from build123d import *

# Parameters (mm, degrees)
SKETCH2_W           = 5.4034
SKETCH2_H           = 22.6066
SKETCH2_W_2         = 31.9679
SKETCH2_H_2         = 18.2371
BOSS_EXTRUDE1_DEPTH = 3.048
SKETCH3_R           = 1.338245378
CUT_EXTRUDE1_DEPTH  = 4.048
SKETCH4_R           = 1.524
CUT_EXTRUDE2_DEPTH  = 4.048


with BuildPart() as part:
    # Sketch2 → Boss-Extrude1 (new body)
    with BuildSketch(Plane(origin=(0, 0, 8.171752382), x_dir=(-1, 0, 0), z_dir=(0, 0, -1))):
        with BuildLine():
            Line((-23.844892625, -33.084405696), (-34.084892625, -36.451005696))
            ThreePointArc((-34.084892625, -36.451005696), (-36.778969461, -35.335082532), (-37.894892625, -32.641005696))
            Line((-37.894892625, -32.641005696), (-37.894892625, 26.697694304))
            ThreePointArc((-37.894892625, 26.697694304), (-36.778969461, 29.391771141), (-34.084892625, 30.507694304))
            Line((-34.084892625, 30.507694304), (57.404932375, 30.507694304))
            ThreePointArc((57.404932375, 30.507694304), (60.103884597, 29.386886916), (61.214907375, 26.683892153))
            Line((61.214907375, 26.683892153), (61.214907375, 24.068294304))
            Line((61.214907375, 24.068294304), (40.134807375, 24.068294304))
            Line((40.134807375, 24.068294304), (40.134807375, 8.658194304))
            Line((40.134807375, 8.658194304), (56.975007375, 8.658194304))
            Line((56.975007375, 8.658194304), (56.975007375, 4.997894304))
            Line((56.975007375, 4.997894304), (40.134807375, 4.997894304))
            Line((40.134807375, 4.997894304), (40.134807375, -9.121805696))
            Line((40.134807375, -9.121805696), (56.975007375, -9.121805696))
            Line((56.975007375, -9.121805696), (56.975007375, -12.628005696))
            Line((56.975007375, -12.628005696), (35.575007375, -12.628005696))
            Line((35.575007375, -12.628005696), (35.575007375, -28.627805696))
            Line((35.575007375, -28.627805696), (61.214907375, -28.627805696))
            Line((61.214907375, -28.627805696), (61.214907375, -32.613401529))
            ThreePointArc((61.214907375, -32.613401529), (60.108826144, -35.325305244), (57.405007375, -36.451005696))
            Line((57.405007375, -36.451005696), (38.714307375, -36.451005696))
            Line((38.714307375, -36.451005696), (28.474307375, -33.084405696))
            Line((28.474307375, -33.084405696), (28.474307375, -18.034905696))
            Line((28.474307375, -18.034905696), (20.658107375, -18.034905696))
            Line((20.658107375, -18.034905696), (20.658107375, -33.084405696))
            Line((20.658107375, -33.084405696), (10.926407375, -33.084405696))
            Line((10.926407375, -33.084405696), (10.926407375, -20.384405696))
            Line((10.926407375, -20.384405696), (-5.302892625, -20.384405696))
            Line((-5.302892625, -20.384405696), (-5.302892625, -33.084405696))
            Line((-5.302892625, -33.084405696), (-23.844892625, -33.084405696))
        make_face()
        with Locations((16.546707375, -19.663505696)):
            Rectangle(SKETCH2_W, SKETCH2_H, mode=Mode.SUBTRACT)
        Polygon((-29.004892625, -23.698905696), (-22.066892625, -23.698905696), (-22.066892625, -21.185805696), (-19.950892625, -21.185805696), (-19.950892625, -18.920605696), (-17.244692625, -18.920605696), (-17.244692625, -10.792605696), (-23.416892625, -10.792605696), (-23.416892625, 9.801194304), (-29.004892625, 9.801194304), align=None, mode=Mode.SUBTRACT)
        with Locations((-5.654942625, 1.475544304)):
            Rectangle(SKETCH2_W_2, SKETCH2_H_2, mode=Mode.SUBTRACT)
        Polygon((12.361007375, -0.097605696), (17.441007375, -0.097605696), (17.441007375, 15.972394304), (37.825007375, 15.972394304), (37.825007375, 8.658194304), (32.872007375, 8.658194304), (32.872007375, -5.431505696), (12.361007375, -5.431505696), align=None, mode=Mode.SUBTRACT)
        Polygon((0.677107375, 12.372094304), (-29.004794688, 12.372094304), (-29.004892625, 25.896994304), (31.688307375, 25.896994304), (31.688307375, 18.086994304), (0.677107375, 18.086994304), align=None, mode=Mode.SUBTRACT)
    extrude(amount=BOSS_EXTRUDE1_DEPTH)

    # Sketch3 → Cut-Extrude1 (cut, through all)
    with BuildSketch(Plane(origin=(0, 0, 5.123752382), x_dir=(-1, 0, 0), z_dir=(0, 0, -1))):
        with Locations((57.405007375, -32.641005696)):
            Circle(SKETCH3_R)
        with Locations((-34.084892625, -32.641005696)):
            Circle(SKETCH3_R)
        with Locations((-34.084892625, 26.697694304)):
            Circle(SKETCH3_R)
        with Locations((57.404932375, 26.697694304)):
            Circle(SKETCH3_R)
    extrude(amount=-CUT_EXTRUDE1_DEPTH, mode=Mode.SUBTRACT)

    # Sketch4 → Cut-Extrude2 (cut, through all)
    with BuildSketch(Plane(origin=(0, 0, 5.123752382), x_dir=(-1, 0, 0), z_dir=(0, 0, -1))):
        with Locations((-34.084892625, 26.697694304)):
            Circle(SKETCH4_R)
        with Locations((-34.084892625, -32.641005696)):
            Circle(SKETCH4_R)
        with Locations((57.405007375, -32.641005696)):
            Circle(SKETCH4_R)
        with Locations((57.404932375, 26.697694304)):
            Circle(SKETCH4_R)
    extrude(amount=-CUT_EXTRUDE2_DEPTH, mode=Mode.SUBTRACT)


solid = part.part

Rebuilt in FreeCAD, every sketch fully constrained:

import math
import FreeCAD as App
import Part
import Sketcher

V = App.Vector
Q = App.Units.Quantity


def add_polygon(sketch, points):
    """Adds a closed chain of lines whose ends are joined by coincident constraints."""
    first, n = sketch.GeometryCount, len(points)
    for a, b in zip(points, points[1:] + points[:1]):
        sketch.addGeometry(Part.LineSegment(App.Vector(*a, 0), App.Vector(*b, 0)), False)
    for i in range(n):
        sketch.addConstraint(Sketcher.Constraint("Coincident", first + i, 2, first + (i + 1) % n, 1))

doc = App.newDocument("Part")
body = doc.addObject("PartDesign::Body", "Body")

# Sketch on XY plane
sketch1 = doc.addObject("Sketcher::SketchObject", "Sketch")
body.addObject(sketch1)
sketch1.AttachmentSupport = (doc.XY_Plane, [""])
sketch1.MapMode = "FlatFace"
sketch1.AttachmentOffset = App.Placement(V(0, 0, 8.171752), App.Rotation())
sketch1.addGeometry(Part.LineSegment(V(34.1, -36.5, 0), V(23.8, -33.1, 0)), False)  # 0
sketch1.addGeometry(Part.LineSegment(V(23.8, -33.1, 0), V(5.3, -33.1, 0)), False)  # 1
sketch1.addGeometry(Part.LineSegment(V(5.3, -33.1, 0), V(5.3, -20.4, 0)), False)  # 2
sketch1.addGeometry(Part.LineSegment(V(5.3, -20.4, 0), V(-10.9, -20.4, 0)), False)  # 3
sketch1.addGeometry(Part.LineSegment(V(-10.9, -20.4, 0), V(-10.9, -33.1, 0)), False)  # 4
sketch1.addGeometry(Part.LineSegment(V(-10.9, -33.1, 0), V(-20.7, -33.1, 0)), False)  # 5
sketch1.addGeometry(Part.LineSegment(V(-20.7, -33.1, 0), V(-20.7, -18, 0)), False)  # 6
sketch1.addGeometry(Part.LineSegment(V(-20.7, -18, 0), V(-28.5, -18, 0)), False)  # 7
sketch1.addGeometry(Part.LineSegment(V(-28.5, -18, 0), V(-28.5, -33.1, 0)), False)  # 8
sketch1.addGeometry(Part.LineSegment(V(-28.5, -33.1, 0), V(-38.7, -36.5, 0)), False)  # 9
sketch1.addGeometry(Part.LineSegment(V(-38.7, -36.5, 0), V(-57.4, -36.5, 0)), False)  # 10
sketch1.addGeometry(Part.ArcOfCircle(Part.Circle(V(-57.4, -32.6, 0), V(0, 0, 1), 3.8), math.radians(180), math.radians(270)), False)  # 11
sketch1.addGeometry(Part.LineSegment(V(-61.2, -32.6, 0), V(-61.2, -28.6, 0)), False)  # 12
sketch1.addGeometry(Part.LineSegment(V(-61.2, -28.6, 0), V(-35.6, -28.6, 0)), False)  # 13
sketch1.addGeometry(Part.LineSegment(V(-35.6, -28.6, 0), V(-35.6, -12.6, 0)), False)  # 14
sketch1.addGeometry(Part.LineSegment(V(-35.6, -12.6, 0), V(-57, -12.6, 0)), False)  # 15
sketch1.addGeometry(Part.LineSegment(V(-57, -12.6, 0), V(-57, -9.1, 0)), False)  # 16
sketch1.addGeometry(Part.LineSegment(V(-57, -9.1, 0), V(-40.1, -9.1, 0)), False)  # 17
sketch1.addGeometry(Part.LineSegment(V(-40.1, -9.1, 0), V(-40.1, 5, 0)), False)  # 18
sketch1.addGeometry(Part.LineSegment(V(-40.1, 5, 0), V(-57, 5, 0)), False)  # 19
sketch1.addGeometry(Part.LineSegment(V(-57, 5, 0), V(-57, 8.7, 0)), False)  # 20
sketch1.addGeometry(Part.LineSegment(V(-57, 8.7, 0), V(-40.1, 8.7, 0)), False)  # 21
sketch1.addGeometry(Part.LineSegment(V(-40.1, 8.7, 0), V(-40.1, 24.1, 0)), False)  # 22
sketch1.addGeometry(Part.LineSegment(V(-40.1, 24.1, 0), V(-61.2, 24.1, 0)), False)  # 23
sketch1.addGeometry(Part.LineSegment(V(-61.2, 24.1, 0), V(-61.2, 26.7, 0)), False)  # 24
sketch1.addGeometry(Part.ArcOfCircle(Part.Circle(V(-57.4, 26.7, 0), V(0, 0, 1), 3.8), math.radians(90), math.radians(180)), False)  # 25
sketch1.addGeometry(Part.LineSegment(V(-57.4, 30.5, 0), V(34.1, 30.5, 0)), False)  # 26
sketch1.addGeometry(Part.ArcOfCircle(Part.Circle(V(34.1, 26.7, 0), V(0, 0, 1), 3.8), math.radians(0), math.radians(90)), False)  # 27
sketch1.addGeometry(Part.LineSegment(V(37.9, 26.7, 0), V(37.9, -32.6, 0)), False)  # 28
sketch1.addGeometry(Part.ArcOfCircle(Part.Circle(V(34.1, -32.6, 0), V(0, 0, 1), 3.8), math.radians(-90), math.radians(0)), False)  # 29
add_polygon(sketch1, [(-13.8, -31), (-13.8, -8.4), (-19.2, -8.4), (-19.2, -31)])  # lines 30-33
add_polygon(sketch1, [(29, -23.7), (29, 9.8), (23.4, 9.8), (23.4, -10.8), (17.2, -10.8), (17.2, -18.9), (20, -18.9), (20, -21.2), (22.1, -21.2), (22.1, -23.7)])  # lines 34-43
add_polygon(sketch1, [(-12.4, -0.1), (-17.4, -0.1), (-17.4, 16), (-37.8, 16), (-37.8, 8.7), (-32.9, 8.7), (-32.9, -5.4), (-12.4, -5.4)])  # lines 44-51
add_polygon(sketch1, [(21.6, -7.6), (21.6, 10.6), (-10.3, 10.6), (-10.3, -7.6)])  # lines 52-55
add_polygon(sketch1, [(-0.7, 12.4), (29, 12.4), (29, 25.9), (-31.7, 25.9), (-31.7, 18.1), (-0.7, 18.1)])  # lines 56-61
sketch1.addConstraint([
    Sketcher.Constraint("Coincident", 0, 2, 1, 1),
    Sketcher.Constraint("Coincident", 1, 2, 2, 1),
    Sketcher.Constraint("Coincident", 2, 2, 3, 1),
    Sketcher.Constraint("Coincident", 3, 2, 4, 1),
    Sketcher.Constraint("Coincident", 4, 2, 5, 1),
    Sketcher.Constraint("Coincident", 5, 2, 6, 1),
    Sketcher.Constraint("Coincident", 6, 2, 7, 1),
    Sketcher.Constraint("Coincident", 7, 2, 8, 1),
    Sketcher.Constraint("Coincident", 8, 2, 9, 1),
    Sketcher.Constraint("Coincident", 9, 2, 10, 1),
    Sketcher.Constraint("Tangent", 10, 2, 11, 2),
    Sketcher.Constraint("Coincident", 11, 1, 12, 1),
    Sketcher.Constraint("Coincident", 12, 2, 13, 1),
    Sketcher.Constraint("Coincident", 13, 2, 14, 1),
    Sketcher.Constraint("Coincident", 14, 2, 15, 1),
    Sketcher.Constraint("Coincident", 15, 2, 16, 1),
    Sketcher.Constraint("Coincident", 16, 2, 17, 1),
    Sketcher.Constraint("Coincident", 17, 2, 18, 1),
    Sketcher.Constraint("Coincident", 18, 2, 19, 1),
    Sketcher.Constraint("Coincident", 19, 2, 20, 1),
    Sketcher.Constraint("Coincident", 20, 2, 21, 1),
    Sketcher.Constraint("Coincident", 21, 2, 22, 1),
    Sketcher.Constraint("Coincident", 22, 2, 23, 1),
    Sketcher.Constraint("Coincident", 23, 2, 24, 1),
    Sketcher.Constraint("Coincident", 24, 2, 25, 2),
    Sketcher.Constraint("Tangent", 25, 1, 26, 1),
    Sketcher.Constraint("Tangent", 26, 2, 27, 2),
    Sketcher.Constraint("Tangent", 27, 1, 28, 1),
    Sketcher.Constraint("Tangent", 28, 2, 29, 2),
    Sketcher.Constraint("Coincident", 29, 1, 0, 1),
    Sketcher.Constraint("Horizontal", 1),
    Sketcher.Constraint("Vertical", 2),
    Sketcher.Constraint("Horizontal", 3),
    Sketcher.Constraint("Vertical", 4),
    Sketcher.Constraint("Horizontal", 5),
    Sketcher.Constraint("Vertical", 6),
    Sketcher.Constraint("Horizontal", 7),
    Sketcher.Constraint("Vertical", 8),
    Sketcher.Constraint("Horizontal", 10),
    Sketcher.Constraint("Vertical", 12),
    Sketcher.Constraint("Horizontal", 13),
    Sketcher.Constraint("Vertical", 14),
    Sketcher.Constraint("Horizontal", 15),
    Sketcher.Constraint("Vertical", 16),
    Sketcher.Constraint("Horizontal", 17),
    Sketcher.Constraint("Vertical", 18),
    Sketcher.Constraint("Horizontal", 19),
    Sketcher.Constraint("Vertical", 20),
    Sketcher.Constraint("Horizontal", 21),
    Sketcher.Constraint("Vertical", 22),
    Sketcher.Constraint("Horizontal", 23),
    Sketcher.Constraint("Vertical", 24),
    Sketcher.Constraint("Horizontal", 26),
    Sketcher.Constraint("Vertical", 28),
    Sketcher.Constraint("Vertical", 30),
    Sketcher.Constraint("Horizontal", 31),
    Sketcher.Constraint("Vertical", 32),
    Sketcher.Constraint("Horizontal", 33),
    Sketcher.Constraint("Vertical", 34),
    Sketcher.Constraint("Horizontal", 35),
    Sketcher.Constraint("Vertical", 36),
    Sketcher.Constraint("Horizontal", 37),
    Sketcher.Constraint("Vertical", 38),
    Sketcher.Constraint("Horizontal", 39),
    Sketcher.Constraint("Vertical", 40),
    Sketcher.Constraint("Horizontal", 41),
    Sketcher.Constraint("Vertical", 42),
    Sketcher.Constraint("Horizontal", 43),
    Sketcher.Constraint("Horizontal", 44),
    Sketcher.Constraint("Vertical", 45),
    Sketcher.Constraint("Horizontal", 46),
    Sketcher.Constraint("Vertical", 47),
    Sketcher.Constraint("Horizontal", 48),
    Sketcher.Constraint("Vertical", 49),
    Sketcher.Constraint("Horizontal", 50),
    Sketcher.Constraint("Vertical", 51),
    Sketcher.Constraint("Vertical", 52),
    Sketcher.Constraint("Horizontal", 53),
    Sketcher.Constraint("Vertical", 54),
    Sketcher.Constraint("Horizontal", 55),
    Sketcher.Constraint("Horizontal", 56),
    Sketcher.Constraint("Horizontal", 58),
    Sketcher.Constraint("Vertical", 59),
    Sketcher.Constraint("Horizontal", 60),
    Sketcher.Constraint("Vertical", 61),
    Sketcher.Constraint("Equal", 11, 25),
    Sketcher.Constraint("Equal", 25, 27),
    Sketcher.Constraint("Equal", 27, 29),
    Sketcher.Constraint("Horizontal", 11, 3, 29, 3),
    Sketcher.Constraint("Horizontal", 1, 2, 4, 2),
    Sketcher.Constraint("Horizontal", 5, 2, 8, 2),
    Sketcher.Constraint("Horizontal", 21, 2, 47, 2),
    Sketcher.Constraint("Vertical", 16, 2, 19, 2),
    Sketcher.Constraint("Vertical", 18, 2, 21, 2),
    Sketcher.Constraint("Vertical", 12, 2, 23, 2),
    Sketcher.Constraint("Vertical", 26, 2, 29, 1),
    Sketcher.Constraint("Vertical", 43, 2, 57, 2),
    Sketcher.Constraint("Equal", 0, 9),
    Sketcher.Constraint("Radius", 11, Q("0.15 in")),
    Sketcher.Constraint("DistanceX", 44, 2, 44, 1, Q("0.2 in")),
    Sketcher.Constraint("DistanceY", 2, 1, 2, 2, Q("0.5 in")),
    Sketcher.Constraint("DistanceX", 1, 2, 1, 1, Q("0.73 in")),
    Sketcher.Constraint("DistanceX", 35, 2, 35, 1, Q("0.22 in")),
    Sketcher.Constraint("DistanceY", 38, 2, 38, 1, Q("0.32 in")),
    Sketcher.Constraint("DistanceX", 17, 1, 17, 2, Q("0.663 in")),
    Sketcher.Constraint("DistanceX", 37, 2, 37, 1, Q("0.243 in")),
    Sketcher.Constraint("DistanceX", 48, 1, 48, 2, Q("0.195 in")),
    Sketcher.Constraint("DistanceY", 6, 1, 6, 2, Q("0.5925 in")),
    Sketcher.Constraint("DistanceX", 3, 2, 3, 1, 16.2293),
    Sketcher.Constraint("DistanceX", 5, 2, 5, 1, 9.7317),
    Sketcher.Constraint("DistanceX", 7, 2, 7, 1, 7.8162),
    Sketcher.Constraint("DistanceX", 10, 2, 10, 1, 18.6907),
    Sketcher.Constraint("DistanceX", 13, 1, 13, 2, 25.6399),
    Sketcher.Constraint("DistanceX", 15, 2, 15, 1, 21.4),
    Sketcher.Constraint("DistanceX", 31, 2, 31, 1, 5.4034),
    Sketcher.Constraint("DistanceX", 39, 1, 39, 2, 2.7062),
    Sketcher.Constraint("DistanceX", 41, 1, 41, 2, 2.116),
    Sketcher.Constraint("DistanceX", 46, 2, 46, 1, 20.384),
    Sketcher.Constraint("DistanceX", 53, 2, 53, 1, 31.9679),
    Sketcher.Constraint("DistanceX", 58, 2, 58, 1, 60.6932),
    Sketcher.Constraint("DistanceX", 60, 1, 60, 2, 31.0112),
    Sketcher.Constraint("DistanceY", 14, 1, 14, 2, 15.9998),
    Sketcher.Constraint("DistanceY", 16, 1, 16, 2, 3.5062),
    Sketcher.Constraint("DistanceY", 18, 1, 18, 2, 14.1197),
    Sketcher.Constraint("DistanceY", 20, 1, 20, 2, 3.6603),
    Sketcher.Constraint("DistanceY", 22, 1, 22, 2, 15.4101),
    Sketcher.Constraint("DistanceY", 28, 2, 28, 1, 59.3387),
    Sketcher.Constraint("DistanceY", 30, 1, 30, 2, 22.6066),
    Sketcher.Constraint("DistanceY", 34, 1, 34, 2, 33.5001),
    Sketcher.Constraint("DistanceY", 36, 2, 36, 1, 20.5938),
    Sketcher.Constraint("DistanceY", 40, 2, 40, 1, 2.2652),
    Sketcher.Constraint("DistanceY", 45, 1, 45, 2, 16.07),
    Sketcher.Constraint("DistanceY", 47, 2, 47, 1, 7.3142),
    Sketcher.Constraint("DistanceY", 49, 2, 49, 1, 14.0897),
    Sketcher.Constraint("DistanceY", 52, 1, 52, 2, 18.2371),
    Sketcher.Constraint("DistanceY", 59, 2, 59, 1, 7.81),
    Sketcher.Constraint("DistanceY", 61, 2, 61, 1, 5.7149),
    Sketcher.Constraint("DistanceY", 11, 1, -1, 1, 32.613402),
    Sketcher.Constraint("Distance", 0, 10.779221),
    Sketcher.Constraint("DistanceX", 26, 1, 26, 2, 91.489825),
    Sketcher.Constraint("DistanceX", 56, 1, 56, 2, 29.681902),
    Sketcher.Constraint("DistanceY", 12, 1, 12, 2, 3.985596),
    Sketcher.Constraint("DistanceY", 24, 1, 24, 2, 2.615598),
    Sketcher.Constraint("DistanceX", 11, 3, -1, 1, 57.405007),
    Sketcher.Constraint("DistanceY", 11, 3, -1, 1, 32.641006),
    Sketcher.Constraint("DistanceX", 30, 2, -1, 1, 13.845007),
    Sketcher.Constraint("DistanceY", 30, 2, -1, 1, 8.360206),
    Sketcher.Constraint("DistanceX", -1, 1, 34, 2, 29.004893),
    Sketcher.Constraint("DistanceY", -1, 1, 34, 2, 9.801194),
    Sketcher.Constraint("DistanceX", 44, 2, -1, 1, 17.441007),
    Sketcher.Constraint("DistanceX", -1, 1, 52, 2, 21.638893),
    Sketcher.Constraint("DistanceY", -1, 1, 52, 2, 10.594094),
    Sketcher.Constraint("DistanceY", -1, 1, 56, 2, 12.372094),
])
pad1 = doc.addObject("PartDesign::Pad", "Pad")
body.addObject(pad1)
pad1.Profile = sketch1
pad1.Length = Q("0.12 in")
pad1.Reversed = True

# Sketch on XY plane
sketch2 = doc.addObject("Sketcher::SketchObject", "Sketch001")
body.addObject(sketch2)
sketch2.AttachmentSupport = (doc.XY_Plane, [""])
sketch2.MapMode = "FlatFace"
sketch2.AttachmentOffset = App.Placement(V(0, 0, 5.123752), App.Rotation())
sketch2.addGeometry([
    Part.Circle(V(-57.4, -32.6, 0), V(0, 0, 1), 1.3),
    Part.Circle(V(34.1, -32.6, 0), V(0, 0, 1), 1.3),
    Part.Circle(V(34.1, 26.7, 0), V(0, 0, 1), 1.3),
    Part.Circle(V(-57.4, 26.7, 0), V(0, 0, 1), 1.3),
], False)
sketch2.addConstraint([
    Sketcher.Constraint("Equal", 0, 1),
    Sketcher.Constraint("Equal", 1, 2),
    Sketcher.Constraint("Equal", 2, 3),
    Sketcher.Constraint("Horizontal", 0, 3, 1, 3),
    Sketcher.Constraint("Horizontal", 2, 3, 3, 3),
    Sketcher.Constraint("Vertical", 1, 3, 2, 3),
    Sketcher.Constraint("Diameter", 0, 2.676491),
    Sketcher.Constraint("DistanceX", 0, 3, 1, 3, 91.4899),
    Sketcher.Constraint("DistanceY", 1, 3, 2, 3, 59.3387),
    Sketcher.Constraint("DistanceX", 0, 3, -1, 1, 57.405007),
    Sketcher.Constraint("DistanceY", 0, 3, -1, 1, 32.641006),
    Sketcher.Constraint("DistanceX", 3, 3, -1, 1, 57.404932),
])
pocket1 = doc.addObject("PartDesign::Pocket", "Pocket")
body.addObject(pocket1)
pocket1.Profile = sketch2
pocket1.Type = "ThroughAll"
pocket1.Reversed = True

# Sketch on XY plane
sketch3 = doc.addObject("Sketcher::SketchObject", "Sketch002")
body.addObject(sketch3)
sketch3.AttachmentSupport = (doc.XY_Plane, [""])
sketch3.MapMode = "FlatFace"
sketch3.AttachmentOffset = App.Placement(V(0, 0, 5.123752), App.Rotation())
sketch3.addGeometry([
    Part.Circle(V(34.1, 26.7, 0), V(0, 0, 1), 1.5),
    Part.Circle(V(34.1, -32.6, 0), V(0, 0, 1), 1.5),
    Part.Circle(V(-57.4, -32.6, 0), V(0, 0, 1), 1.5),
    Part.Circle(V(-57.4, 26.7, 0), V(0, 0, 1), 1.5),
], False)
sketch3.addConstraint([
    Sketcher.Constraint("Equal", 0, 1),
    Sketcher.Constraint("Equal", 1, 2),
    Sketcher.Constraint("Equal", 2, 3),
    Sketcher.Constraint("Horizontal", 1, 3, 2, 3),
    Sketcher.Constraint("Horizontal", 0, 3, 3, 3),
    Sketcher.Constraint("Vertical", 0, 3, 1, 3),
    Sketcher.Constraint("Diameter", 0, Q("0.12 in")),
    Sketcher.Constraint("DistanceY", 1, 3, 0, 3, 59.3387),
    Sketcher.Constraint("DistanceX", 2, 3, 1, 3, 91.4899),
    Sketcher.Constraint("DistanceX", -1, 1, 0, 3, 34.084893),
    Sketcher.Constraint("DistanceY", -1, 1, 0, 3, 26.697694),
    Sketcher.Constraint("DistanceX", 3, 3, -1, 1, 57.404932),
])
pocket2 = doc.addObject("PartDesign::Pocket", "Pocket001")
body.addObject(pocket2)
pocket2.Profile = sketch3
pocket2.Type = "ThroughAll"
pocket2.Reversed = True

doc.recompute()
